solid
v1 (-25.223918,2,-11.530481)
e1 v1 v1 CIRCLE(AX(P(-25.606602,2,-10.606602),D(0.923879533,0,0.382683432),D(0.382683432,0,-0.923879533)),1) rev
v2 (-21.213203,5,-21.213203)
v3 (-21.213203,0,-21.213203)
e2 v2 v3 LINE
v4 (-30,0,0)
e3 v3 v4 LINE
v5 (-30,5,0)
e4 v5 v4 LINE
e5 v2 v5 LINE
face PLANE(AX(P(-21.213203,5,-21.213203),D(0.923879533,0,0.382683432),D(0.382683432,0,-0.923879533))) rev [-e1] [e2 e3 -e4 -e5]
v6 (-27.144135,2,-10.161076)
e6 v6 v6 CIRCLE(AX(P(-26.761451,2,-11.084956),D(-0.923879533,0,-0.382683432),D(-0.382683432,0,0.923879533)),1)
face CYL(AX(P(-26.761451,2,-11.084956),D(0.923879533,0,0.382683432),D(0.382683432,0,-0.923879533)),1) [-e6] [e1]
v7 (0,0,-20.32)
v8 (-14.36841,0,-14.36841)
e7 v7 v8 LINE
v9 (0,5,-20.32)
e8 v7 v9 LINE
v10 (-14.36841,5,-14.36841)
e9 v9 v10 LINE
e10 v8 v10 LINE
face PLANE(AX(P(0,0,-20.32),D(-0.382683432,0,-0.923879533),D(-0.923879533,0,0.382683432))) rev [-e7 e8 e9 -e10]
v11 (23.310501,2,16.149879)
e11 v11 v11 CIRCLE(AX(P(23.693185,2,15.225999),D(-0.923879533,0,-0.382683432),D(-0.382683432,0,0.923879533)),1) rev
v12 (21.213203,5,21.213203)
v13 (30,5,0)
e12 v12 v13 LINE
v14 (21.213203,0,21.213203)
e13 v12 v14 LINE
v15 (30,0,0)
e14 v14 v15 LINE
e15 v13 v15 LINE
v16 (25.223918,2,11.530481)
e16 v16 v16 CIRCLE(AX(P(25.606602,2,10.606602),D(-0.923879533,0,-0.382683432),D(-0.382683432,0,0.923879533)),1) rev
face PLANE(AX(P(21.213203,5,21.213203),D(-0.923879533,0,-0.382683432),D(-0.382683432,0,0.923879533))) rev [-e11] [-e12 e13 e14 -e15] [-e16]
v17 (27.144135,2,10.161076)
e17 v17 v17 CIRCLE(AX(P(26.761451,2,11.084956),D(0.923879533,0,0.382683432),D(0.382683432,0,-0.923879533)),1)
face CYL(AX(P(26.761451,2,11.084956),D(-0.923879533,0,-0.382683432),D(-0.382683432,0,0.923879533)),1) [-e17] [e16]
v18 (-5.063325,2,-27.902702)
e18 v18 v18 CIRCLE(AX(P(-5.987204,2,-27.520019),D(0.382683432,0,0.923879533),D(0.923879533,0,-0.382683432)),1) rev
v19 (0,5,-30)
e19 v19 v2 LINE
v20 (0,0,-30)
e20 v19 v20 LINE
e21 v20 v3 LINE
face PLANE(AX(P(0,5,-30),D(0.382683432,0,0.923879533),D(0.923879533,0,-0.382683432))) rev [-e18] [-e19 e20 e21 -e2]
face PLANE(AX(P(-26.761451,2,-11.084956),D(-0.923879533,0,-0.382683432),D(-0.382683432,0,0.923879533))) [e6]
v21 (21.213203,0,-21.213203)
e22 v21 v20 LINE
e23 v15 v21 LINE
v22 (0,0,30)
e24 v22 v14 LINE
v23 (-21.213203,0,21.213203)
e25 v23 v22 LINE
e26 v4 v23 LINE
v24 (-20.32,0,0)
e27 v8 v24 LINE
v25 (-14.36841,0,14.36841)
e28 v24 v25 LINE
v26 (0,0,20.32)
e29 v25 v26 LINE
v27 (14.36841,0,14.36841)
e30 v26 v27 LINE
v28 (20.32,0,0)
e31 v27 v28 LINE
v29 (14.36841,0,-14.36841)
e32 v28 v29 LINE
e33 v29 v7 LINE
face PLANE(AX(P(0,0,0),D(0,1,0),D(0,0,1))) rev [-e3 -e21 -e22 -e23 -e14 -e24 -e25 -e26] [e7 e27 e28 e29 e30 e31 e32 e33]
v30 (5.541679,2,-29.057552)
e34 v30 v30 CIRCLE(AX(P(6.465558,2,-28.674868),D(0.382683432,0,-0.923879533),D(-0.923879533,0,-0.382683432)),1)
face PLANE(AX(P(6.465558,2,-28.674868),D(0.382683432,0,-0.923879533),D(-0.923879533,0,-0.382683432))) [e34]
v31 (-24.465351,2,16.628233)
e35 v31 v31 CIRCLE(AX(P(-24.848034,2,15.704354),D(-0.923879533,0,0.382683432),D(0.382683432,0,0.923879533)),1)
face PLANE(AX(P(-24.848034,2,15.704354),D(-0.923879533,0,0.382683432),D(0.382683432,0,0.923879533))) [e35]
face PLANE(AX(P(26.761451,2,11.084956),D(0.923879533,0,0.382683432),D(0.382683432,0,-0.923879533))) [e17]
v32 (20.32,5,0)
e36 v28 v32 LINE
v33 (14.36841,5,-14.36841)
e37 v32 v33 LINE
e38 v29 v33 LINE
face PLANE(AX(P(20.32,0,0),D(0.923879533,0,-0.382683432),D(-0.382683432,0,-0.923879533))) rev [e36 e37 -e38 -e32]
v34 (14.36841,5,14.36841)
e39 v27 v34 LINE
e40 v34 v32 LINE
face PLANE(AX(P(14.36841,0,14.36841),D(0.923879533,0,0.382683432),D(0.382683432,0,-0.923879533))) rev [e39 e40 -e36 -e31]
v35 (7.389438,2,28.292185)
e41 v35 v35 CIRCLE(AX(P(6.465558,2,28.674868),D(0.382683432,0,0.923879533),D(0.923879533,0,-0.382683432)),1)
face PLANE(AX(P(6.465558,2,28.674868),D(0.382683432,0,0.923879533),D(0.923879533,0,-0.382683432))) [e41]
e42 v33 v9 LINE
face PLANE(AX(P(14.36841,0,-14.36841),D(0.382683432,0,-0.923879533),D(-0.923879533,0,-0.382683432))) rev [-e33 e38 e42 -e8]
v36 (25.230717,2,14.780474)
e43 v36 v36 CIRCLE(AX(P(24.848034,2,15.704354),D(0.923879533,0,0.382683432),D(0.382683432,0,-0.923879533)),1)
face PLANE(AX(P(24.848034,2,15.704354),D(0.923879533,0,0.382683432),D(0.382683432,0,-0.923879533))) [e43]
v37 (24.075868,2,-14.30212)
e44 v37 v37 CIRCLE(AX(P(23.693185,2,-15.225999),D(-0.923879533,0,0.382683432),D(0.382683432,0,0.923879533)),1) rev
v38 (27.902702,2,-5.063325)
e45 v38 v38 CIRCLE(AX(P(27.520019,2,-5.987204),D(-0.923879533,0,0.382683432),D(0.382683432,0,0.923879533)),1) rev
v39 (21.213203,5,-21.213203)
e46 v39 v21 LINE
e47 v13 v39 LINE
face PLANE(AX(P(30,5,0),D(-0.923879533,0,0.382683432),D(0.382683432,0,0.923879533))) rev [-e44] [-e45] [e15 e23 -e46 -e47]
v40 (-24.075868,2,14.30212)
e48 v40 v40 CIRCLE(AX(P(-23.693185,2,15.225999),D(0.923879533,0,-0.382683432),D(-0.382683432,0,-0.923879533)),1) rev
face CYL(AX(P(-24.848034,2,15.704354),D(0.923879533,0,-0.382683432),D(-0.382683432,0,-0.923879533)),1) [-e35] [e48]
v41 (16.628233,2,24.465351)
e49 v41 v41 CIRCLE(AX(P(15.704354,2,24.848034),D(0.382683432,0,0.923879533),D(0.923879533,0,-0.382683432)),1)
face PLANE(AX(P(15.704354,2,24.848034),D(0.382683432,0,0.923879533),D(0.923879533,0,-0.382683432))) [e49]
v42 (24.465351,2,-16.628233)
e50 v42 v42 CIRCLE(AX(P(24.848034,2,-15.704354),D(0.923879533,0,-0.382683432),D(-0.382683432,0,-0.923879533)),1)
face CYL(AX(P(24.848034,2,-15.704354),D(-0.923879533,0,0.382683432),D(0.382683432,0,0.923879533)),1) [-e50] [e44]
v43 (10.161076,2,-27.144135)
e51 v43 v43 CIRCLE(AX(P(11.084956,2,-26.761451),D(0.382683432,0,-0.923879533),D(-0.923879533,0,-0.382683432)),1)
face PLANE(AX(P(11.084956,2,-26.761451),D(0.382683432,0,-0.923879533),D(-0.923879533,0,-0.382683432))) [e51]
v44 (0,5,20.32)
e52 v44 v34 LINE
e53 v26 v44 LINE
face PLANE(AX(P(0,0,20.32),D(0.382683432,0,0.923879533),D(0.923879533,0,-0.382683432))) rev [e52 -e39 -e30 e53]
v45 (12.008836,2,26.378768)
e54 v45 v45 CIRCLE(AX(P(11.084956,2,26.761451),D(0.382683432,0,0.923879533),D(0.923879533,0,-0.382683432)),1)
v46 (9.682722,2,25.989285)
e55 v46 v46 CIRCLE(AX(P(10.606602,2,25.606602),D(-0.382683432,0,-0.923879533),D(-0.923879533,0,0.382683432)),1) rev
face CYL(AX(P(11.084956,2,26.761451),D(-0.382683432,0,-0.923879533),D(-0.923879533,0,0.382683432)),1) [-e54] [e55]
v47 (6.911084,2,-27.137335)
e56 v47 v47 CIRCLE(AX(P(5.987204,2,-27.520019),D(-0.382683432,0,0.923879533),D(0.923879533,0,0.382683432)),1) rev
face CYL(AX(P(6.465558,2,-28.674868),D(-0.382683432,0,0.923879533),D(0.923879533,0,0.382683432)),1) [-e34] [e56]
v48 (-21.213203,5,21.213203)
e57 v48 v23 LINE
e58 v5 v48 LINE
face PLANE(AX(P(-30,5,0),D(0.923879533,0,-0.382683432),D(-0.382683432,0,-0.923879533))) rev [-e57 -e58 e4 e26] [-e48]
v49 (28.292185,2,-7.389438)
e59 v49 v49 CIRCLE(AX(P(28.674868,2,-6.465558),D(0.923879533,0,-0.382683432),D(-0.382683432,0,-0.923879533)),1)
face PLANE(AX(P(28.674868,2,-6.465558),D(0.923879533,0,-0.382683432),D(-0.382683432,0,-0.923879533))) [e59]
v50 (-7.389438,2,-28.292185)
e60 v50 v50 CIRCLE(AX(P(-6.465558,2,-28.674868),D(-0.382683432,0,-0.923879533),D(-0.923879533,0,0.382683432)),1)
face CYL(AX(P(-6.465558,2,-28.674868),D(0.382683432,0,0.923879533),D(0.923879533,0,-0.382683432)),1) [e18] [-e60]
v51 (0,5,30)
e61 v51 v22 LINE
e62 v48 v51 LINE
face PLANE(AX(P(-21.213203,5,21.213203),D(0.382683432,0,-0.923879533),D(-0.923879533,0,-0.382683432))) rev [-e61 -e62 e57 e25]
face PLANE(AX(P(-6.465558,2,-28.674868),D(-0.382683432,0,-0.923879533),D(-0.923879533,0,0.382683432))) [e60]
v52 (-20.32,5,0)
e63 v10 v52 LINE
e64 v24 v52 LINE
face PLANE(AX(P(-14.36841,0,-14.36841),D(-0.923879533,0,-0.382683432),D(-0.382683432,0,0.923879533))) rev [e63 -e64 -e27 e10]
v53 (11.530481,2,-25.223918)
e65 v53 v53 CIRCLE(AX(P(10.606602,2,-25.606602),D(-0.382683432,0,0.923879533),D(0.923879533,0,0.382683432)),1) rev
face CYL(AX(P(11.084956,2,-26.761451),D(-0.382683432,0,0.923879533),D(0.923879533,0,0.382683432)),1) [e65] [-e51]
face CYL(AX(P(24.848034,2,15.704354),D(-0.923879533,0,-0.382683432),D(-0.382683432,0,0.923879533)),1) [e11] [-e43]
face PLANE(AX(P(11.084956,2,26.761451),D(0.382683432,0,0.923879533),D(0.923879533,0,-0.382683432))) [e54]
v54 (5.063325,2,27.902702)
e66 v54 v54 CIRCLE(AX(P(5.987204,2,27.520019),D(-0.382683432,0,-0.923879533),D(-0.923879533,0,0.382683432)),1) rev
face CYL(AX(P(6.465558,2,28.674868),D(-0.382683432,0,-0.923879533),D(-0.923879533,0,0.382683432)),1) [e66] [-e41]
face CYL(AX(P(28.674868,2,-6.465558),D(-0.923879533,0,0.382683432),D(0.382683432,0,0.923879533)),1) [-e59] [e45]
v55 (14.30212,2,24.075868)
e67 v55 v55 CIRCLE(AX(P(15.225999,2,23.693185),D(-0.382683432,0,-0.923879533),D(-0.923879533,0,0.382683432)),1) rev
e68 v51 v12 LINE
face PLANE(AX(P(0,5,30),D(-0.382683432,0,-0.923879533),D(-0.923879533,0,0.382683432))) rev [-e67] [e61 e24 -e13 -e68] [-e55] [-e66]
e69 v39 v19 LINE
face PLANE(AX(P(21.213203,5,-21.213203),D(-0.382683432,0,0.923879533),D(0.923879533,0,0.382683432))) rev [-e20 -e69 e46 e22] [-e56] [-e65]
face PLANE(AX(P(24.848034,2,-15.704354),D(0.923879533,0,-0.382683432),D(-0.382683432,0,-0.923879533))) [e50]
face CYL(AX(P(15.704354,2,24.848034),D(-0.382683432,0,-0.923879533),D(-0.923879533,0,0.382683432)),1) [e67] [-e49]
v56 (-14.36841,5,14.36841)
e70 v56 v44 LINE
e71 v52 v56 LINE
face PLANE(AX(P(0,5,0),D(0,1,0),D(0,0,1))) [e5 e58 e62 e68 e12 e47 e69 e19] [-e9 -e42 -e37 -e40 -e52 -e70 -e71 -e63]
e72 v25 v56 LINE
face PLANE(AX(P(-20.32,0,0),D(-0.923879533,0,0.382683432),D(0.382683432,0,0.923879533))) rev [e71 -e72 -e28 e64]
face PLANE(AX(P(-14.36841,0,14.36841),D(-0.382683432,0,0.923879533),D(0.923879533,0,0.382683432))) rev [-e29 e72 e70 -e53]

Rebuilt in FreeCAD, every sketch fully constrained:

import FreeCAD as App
import Part
import Sketcher
from FreeCAD import Vector
Q = App.Units.Quantity

doc = App.newDocument("Part")
params = doc.addObject("Spreadsheet::Sheet", "Params")
for row, (alias, value) in enumerate([
    ("pad1_length", "5 mm"),
    ("pocket1_length", "5 mm"),
    ("sketch3_diameter", "2 mm"),
    ("pad2_length", "1.25 mm"),
    ("sketch4_diameter", "2 mm"),
    ("pad3_length", "1.25 mm"),
    ("sketch5_diameter", "2 mm"),
    ("pad4_length", "1.25 mm"),
    ("sketch6_diameter", "2 mm"),
    ("pad5_length", "1.25 mm"),
    ("sketch7_diameter", "2 mm"),
    ("pad6_length", "1.25 mm"),
    ("sketch8_diameter", "2 mm"),
    ("pad7_length", "1.25 mm"),
    ("sketch9_diameter", "2 mm"),
    ("pad8_length", "1.25 mm"),
], start=1):
    params.set(f"A{row}", alias)
    params.set(f"B{row}", "=" + value)
    params.setAlias(f"B{row}", alias)

body = doc.addObject("PartDesign::Body", "Body")

# Sketch on XZ plane
sketch1 = body.newObject("Sketcher::SketchObject", "Sketch")
sketch1.AttachmentSupport = (doc.getObject("XZ_Plane"), [""])
sketch1.MapMode = "FlatFace"
sketch1.addGeometry([
    Part.LineSegment(Vector(30, 0, 0), Vector(21, -21, 0)),  # 0
    Part.LineSegment(Vector(21, -21, 0), Vector(0, -30, 0)),  # 1
    Part.LineSegment(Vector(0, -30, 0), Vector(-21, -21, 0)),  # 2
    Part.LineSegment(Vector(-21, -21, 0), Vector(-30, 0, 0)),  # 3
    Part.LineSegment(Vector(-30, 0, 0), Vector(-21, 21, 0)),  # 4
    Part.LineSegment(Vector(-21, 21, 0), Vector(0, 30, 0)),  # 5
    Part.LineSegment(Vector(0, 30, 0), Vector(21, 21, 0)),  # 6
    Part.LineSegment(Vector(21, 21, 0), Vector(30, 0, 0)),  # 7
], False)
sketch1.addConstraint([
    Sketcher.Constraint("Coincident", 0, 2, 1, 1),
    Sketcher.Constraint("Coincident", 1, 2, 2, 1),
    Sketcher.Constraint("Coincident", 2, 2, 3, 1),
    Sketcher.Constraint("Coincident", 3, 2, 4, 1),
    Sketcher.Constraint("Coincident", 4, 2, 5, 1),
    Sketcher.Constraint("Coincident", 5, 2, 6, 1),
    Sketcher.Constraint("Coincident", 6, 2, 7, 1),
    Sketcher.Constraint("Coincident", 7, 2, 0, 1),
    Sketcher.Constraint("Symmetric", 0, 2, 4, 2, -1, 1),
    Sketcher.Constraint("Symmetric", 1, 2, 5, 2, -1, 1),
    Sketcher.Constraint("Symmetric", 2, 2, 6, 2, -1, 1),
    Sketcher.Constraint("Symmetric", 3, 2, 7, 2, -1, 1),
    Sketcher.Constraint("Symmetric", 0, 2, 2, 2, -2),
    Sketcher.Constraint("PointOnObject", 1, 2, -2),
    Sketcher.Constraint("PointOnObject", 3, 2, -1),
    Sketcher.Constraint("Perpendicular", 0, 2),
    Sketcher.Constraint("Equal", 0, 1),
    Sketcher.Constraint("DistanceY", 1, 2, -1, 1, 30.0),
    Sketcher.Constraint("Angle", 0, Q("-112.5 deg")),
])
pad1 = body.newObject("PartDesign::Pad", "Pad")
pad1.Profile = sketch1
pad1.setExpression("Length", "Params.pad1_length")
pad1.Reversed = True

# Sketch on XZ plane
sketch2 = body.newObject("Sketcher::SketchObject", "Sketch001")
sketch2.AttachmentSupport = (doc.getObject("XZ_Plane"), [""])
sketch2.MapMode = "FlatFace"
sketch2.AttachmentOffset = App.Placement(Vector(0, 0, -5), App.Rotation())
sketch2.addGeometry([
    Part.LineSegment(Vector(20, 0, 0), Vector(14, -14, 0)),  # 0
    Part.LineSegment(Vector(14, -14, 0), Vector(0, -20, 0)),  # 1
    Part.LineSegment(Vector(0, -20, 0), Vector(-14, -14, 0)),  # 2
    Part.LineSegment(Vector(-14, -14, 0), Vector(-20, 0, 0)),  # 3
    Part.LineSegment(Vector(-20, 0, 0), Vector(-14, 14, 0)),  # 4
    Part.LineSegment(Vector(-14, 14, 0), Vector(0, 20, 0)),  # 5
    Part.LineSegment(Vector(0, 20, 0), Vector(14, 14, 0)),  # 6
    Part.LineSegment(Vector(14, 14, 0), Vector(20, 0, 0)),  # 7
], False)
sketch2.addConstraint([
    Sketcher.Constraint("Coincident", 0, 2, 1, 1),
    Sketcher.Constraint("Coincident", 1, 2, 2, 1),
    Sketcher.Constraint("Coincident", 2, 2, 3, 1),
    Sketcher.Constraint("Coincident", 3, 2, 4, 1),
    Sketcher.Constraint("Coincident", 4, 2, 5, 1),
    Sketcher.Constraint("Coincident", 5, 2, 6, 1),
    Sketcher.Constraint("Coincident", 6, 2, 7, 1),
    Sketcher.Constraint("Coincident", 7, 2, 0, 1),
    Sketcher.Constraint("Symmetric", 0, 2, 4, 2, -1, 1),
    Sketcher.Constraint("Symmetric", 1, 2, 5, 2, -1, 1),
    Sketcher.Constraint("Symmetric", 2, 2, 6, 2, -1, 1),
    Sketcher.Constraint("Symmetric", 3, 2, 7, 2, -1, 1),
    Sketcher.Constraint("Symmetric", 0, 2, 2, 2, -2),
    Sketcher.Constraint("PointOnObject", 1, 2, -2),
    Sketcher.Constraint("PointOnObject", 3, 2, -1),
    Sketcher.Constraint("Perpendicular", 0, 2),
    Sketcher.Constraint("Equal", 0, 1),
    Sketcher.Constraint("Angle", 0, Q("-112.5 deg")),
    Sketcher.Constraint("DistanceY", 1, 2, -1, 1, 20.32),
])
pocket1 = body.newObject("PartDesign::Pocket", "Pocket")
pocket1.Profile = sketch2
pocket1.setExpression("Length", "Params.pocket1_length")
pocket1.Reversed = True

# Sketch on an angled plane
sketch3 = body.newObject("Sketcher::SketchObject", "Sketch002")
sketch3.Placement = App.Placement(Vector(10.606602, 0, 25.606602), App.Rotation(Vector(0.923879533, 0, -0.382683432), Vector(0, 1.000000001, 0), Vector(0.382683432, 0, 0.923879533), "ZXY"))
sketch3.addGeometry([
    Part.Circle(Vector(0, 2, 0), Vector(0, 0, 1), 1),
    Part.Circle(Vector(-5, 2, 0), Vector(0, 0, 1), 1),
    Part.Circle(Vector(5, 2, 0), Vector(0, 0, 1), 1),
], False)
sketch3.addConstraint([
    Sketcher.Constraint("Equal", 0, 1),
    Sketcher.Constraint("Equal", 1, 2),
    Sketcher.Constraint("Symmetric", 1, 3, 2, 3, -2),
    Sketcher.Constraint("PointOnObject", 0, 3, -2),
    Sketcher.Constraint("Horizontal", 0, 3, 1, 3),
    Sketcher.Constraint("Diameter", 0, 2.0),
    Sketcher.Constraint("DistanceY", -1, 1, 0, 3, 2.0),
    Sketcher.Constraint("DistanceX", 1, 3, -1, 1, 5.0),
])
sketch3.setExpression("Constraints[5]", "Params.sketch3_diameter")
pad2 = body.newObject("PartDesign::Pad", "Pad001")
pad2.Profile = sketch3
pad2.setExpression("Length", "Params.pad2_length")

# Sketch on an angled plane
sketch4 = body.newObject("Sketcher::SketchObject", "Sketch003")
sketch4.Placement = App.Placement(Vector(-25.606602, 0, 10.606602), App.Rotation(Vector(0.382683432, 0, 0.923879533), Vector(0, 1.000000001, 0), Vector(-0.923879533, 0, 0.382683432), "ZXY"))
sketch4.addGeometry(Part.Circle(Vector(5, 2, 0), Vector(0, 0, 1), 1), False)
sketch4.addConstraint([
    Sketcher.Constraint("Diameter", 0, 2.0),
    Sketcher.Constraint("DistanceX", -1, 1, 0, 3, 5.0),
    Sketcher.Constraint("DistanceY", -1, 1, 0, 3, 2.0),
])
sketch4.setExpression("Constraints[0]", "Params.sketch4_diameter")
pad3 = body.newObject("PartDesign::Pad", "Pad002")
pad3.Profile = sketch4
pad3.setExpression("Length", "Params.pad3_length")

# Sketch on an angled plane
sketch5 = body.newObject("Sketcher::SketchObject", "Sketch004")
sketch5.Placement = App.Placement(Vector(-25.606602, 0, -10.606602), App.Rotation(Vector(-0.382683432, 0, 0.923879533), Vector(0, 1.000000001, 0), Vector(-0.923879533, 0, -0.382683432), "ZXY"))
sketch5.addGeometry(Part.Circle(Vector(0, 2, 0), Vector(0, 0, 1), 1), False)
sketch5.addConstraint([
    Sketcher.Constraint("PointOnObject", 0, 3, -2),
    Sketcher.Constraint("Diameter", 0, 2.0),
    Sketcher.Constraint("DistanceY", -1, 1, 0, 3, 2.0),
])
sketch5.setExpression("Constraints[1]", "Params.sketch5_diameter")
pad4 = body.newObject("PartDesign::Pad", "Pad003")
pad4.Profile = sketch5
pad4.setExpression("Length", "Params.pad4_length")

# Sketch on an angled plane
sketch6 = body.newObject("Sketcher::SketchObject", "Sketch005")
sketch6.Placement = App.Placement(Vector(-11.084956, 0, -26.761451), App.Rotation(Vector(-0.923879533, 0, 0.382683432), Vector(0, 1.000000001, 0), Vector(-0.382683432, 0, -0.923879533), "ZXY"))
sketch6.addGeometry(Part.Circle(Vector(-5, 2, 0), Vector(0, 0, 1), 1), False)
sketch6.addConstraint([
    Sketcher.Constraint("Diameter", 0, 2.0),
    Sketcher.Constraint("DistanceX", 0, 3, -1, 1, 5.0),
    Sketcher.Constraint("DistanceY", -1, 1, 0, 3, 2.0),
])
sketch6.setExpression("Constraints[0]", "Params.sketch6_diameter")
pad5 = body.newObject("PartDesign::Pad", "Pad004")
pad5.Profile = sketch6
pad5.setExpression("Length", "Params.pad5_length")
pad5.Reversed = True

# Sketch on an angled plane
sketch7 = body.newObject("Sketcher::SketchObject", "Sketch006")
sketch7.Placement = App.Placement(Vector(10.606602, 0, -25.606602), App.Rotation(Vector(-0.923879533, 0, -0.382683432), Vector(0, 1.000000001, 0), Vector(0.382683432, 0, -0.923879533), "ZXY"))
sketch7.addGeometry([
    Part.Circle(Vector(0, 2, 0), Vector(0, 0, 1), 1),
    Part.Circle(Vector(5, 2, 0), Vector(0, 0, 1), 1),
], False)
sketch7.addConstraint([
    Sketcher.Constraint("Equal", 0, 1),
    Sketcher.Constraint("PointOnObject", 0, 3, -2),
    Sketcher.Constraint("Horizontal", 0, 3, 1, 3),
    Sketcher.Constraint("Diameter", 0, 2.0),
    Sketcher.Constraint("DistanceY", -1, 1, 0, 3, 2.0),
    Sketcher.Constraint("DistanceX", -1, 1, 1, 3, 5.0),
])
sketch7.setExpression("Constraints[3]", "Params.sketch7_diameter")
pad6 = body.newObject("PartDesign::Pad", "Pad005")
pad6.Profile = sketch7
pad6.setExpression("Length", "Params.pad6_length")

# Sketch on an angled plane
sketch8 = body.newObject("Sketcher::SketchObject", "Sketch007")
sketch8.Placement = App.Placement(Vector(26.761451, 0, -11.084956), App.Rotation(Vector(-0.382683432, 0, -0.923879533), Vector(0, 1.000000001, 0), Vector(0.923879533, 0, -0.382683432), "ZXY"))
sketch8.addGeometry([
    Part.Circle(Vector(5, 2, 0), Vector(0, 0, 1), 1),
    Part.Circle(Vector(-5, 2, 0), Vector(0, 0, 1), 1),
], False)
sketch8.addConstraint([
    Sketcher.Constraint("Equal", 0, 1),
    Sketcher.Constraint("Symmetric", 0, 3, 1, 3, -2),
    Sketcher.Constraint("Diameter", 0, 2.0),
    Sketcher.Constraint("DistanceX", -1, 1, 0, 3, 5.0),
    Sketcher.Constraint("DistanceY", -1, 1, 0, 3, 2.0),
])
sketch8.setExpression("Constraints[2]", "Params.sketch8_diameter")
pad7 = body.newObject("PartDesign::Pad", "Pad006")
pad7.Profile = sketch8
pad7.setExpression("Length", "Params.pad7_length")
pad7.Reversed = True

# Sketch on an angled plane
sketch9 = body.newObject("Sketcher::SketchObject", "Sketch008")
sketch9.Placement = App.Placement(Vector(26.761451, 0, 11.084956), App.Rotation(Vector(0.382683432, 0, -0.923879533), Vector(0, 1.000000001, 0), Vector(0.923879533, 0, 0.382683432), "ZXY"))
sketch9.addGeometry([
    Part.Circle(Vector(0, 2, 0), Vector(0, 0, 1), 1),
    Part.Circle(Vector(-5, 2, 0), Vector(0, 0, 1), 1),
], False)
sketch9.addConstraint([
    Sketcher.Constraint("Equal", 0, 1),
    Sketcher.Constraint("PointOnObject", 0, 3, -2),
    Sketcher.Constraint("Horizontal", 0, 3, 1, 3),
    Sketcher.Constraint("Diameter", 0, 2.0),
    Sketcher.Constraint("DistanceY", -1, 1, 0, 3, 2.0),
    Sketcher.Constraint("DistanceX", 1, 3, -1, 1, 5.0),
])
sketch9.setExpression("Constraints[3]", "Params.sketch9_diameter")
pad8 = body.newObject("PartDesign::Pad", "Pad007")
pad8.Profile = sketch9
pad8.setExpression("Length", "Params.pad8_length")
pad8.Reversed = True

doc.recompute()
